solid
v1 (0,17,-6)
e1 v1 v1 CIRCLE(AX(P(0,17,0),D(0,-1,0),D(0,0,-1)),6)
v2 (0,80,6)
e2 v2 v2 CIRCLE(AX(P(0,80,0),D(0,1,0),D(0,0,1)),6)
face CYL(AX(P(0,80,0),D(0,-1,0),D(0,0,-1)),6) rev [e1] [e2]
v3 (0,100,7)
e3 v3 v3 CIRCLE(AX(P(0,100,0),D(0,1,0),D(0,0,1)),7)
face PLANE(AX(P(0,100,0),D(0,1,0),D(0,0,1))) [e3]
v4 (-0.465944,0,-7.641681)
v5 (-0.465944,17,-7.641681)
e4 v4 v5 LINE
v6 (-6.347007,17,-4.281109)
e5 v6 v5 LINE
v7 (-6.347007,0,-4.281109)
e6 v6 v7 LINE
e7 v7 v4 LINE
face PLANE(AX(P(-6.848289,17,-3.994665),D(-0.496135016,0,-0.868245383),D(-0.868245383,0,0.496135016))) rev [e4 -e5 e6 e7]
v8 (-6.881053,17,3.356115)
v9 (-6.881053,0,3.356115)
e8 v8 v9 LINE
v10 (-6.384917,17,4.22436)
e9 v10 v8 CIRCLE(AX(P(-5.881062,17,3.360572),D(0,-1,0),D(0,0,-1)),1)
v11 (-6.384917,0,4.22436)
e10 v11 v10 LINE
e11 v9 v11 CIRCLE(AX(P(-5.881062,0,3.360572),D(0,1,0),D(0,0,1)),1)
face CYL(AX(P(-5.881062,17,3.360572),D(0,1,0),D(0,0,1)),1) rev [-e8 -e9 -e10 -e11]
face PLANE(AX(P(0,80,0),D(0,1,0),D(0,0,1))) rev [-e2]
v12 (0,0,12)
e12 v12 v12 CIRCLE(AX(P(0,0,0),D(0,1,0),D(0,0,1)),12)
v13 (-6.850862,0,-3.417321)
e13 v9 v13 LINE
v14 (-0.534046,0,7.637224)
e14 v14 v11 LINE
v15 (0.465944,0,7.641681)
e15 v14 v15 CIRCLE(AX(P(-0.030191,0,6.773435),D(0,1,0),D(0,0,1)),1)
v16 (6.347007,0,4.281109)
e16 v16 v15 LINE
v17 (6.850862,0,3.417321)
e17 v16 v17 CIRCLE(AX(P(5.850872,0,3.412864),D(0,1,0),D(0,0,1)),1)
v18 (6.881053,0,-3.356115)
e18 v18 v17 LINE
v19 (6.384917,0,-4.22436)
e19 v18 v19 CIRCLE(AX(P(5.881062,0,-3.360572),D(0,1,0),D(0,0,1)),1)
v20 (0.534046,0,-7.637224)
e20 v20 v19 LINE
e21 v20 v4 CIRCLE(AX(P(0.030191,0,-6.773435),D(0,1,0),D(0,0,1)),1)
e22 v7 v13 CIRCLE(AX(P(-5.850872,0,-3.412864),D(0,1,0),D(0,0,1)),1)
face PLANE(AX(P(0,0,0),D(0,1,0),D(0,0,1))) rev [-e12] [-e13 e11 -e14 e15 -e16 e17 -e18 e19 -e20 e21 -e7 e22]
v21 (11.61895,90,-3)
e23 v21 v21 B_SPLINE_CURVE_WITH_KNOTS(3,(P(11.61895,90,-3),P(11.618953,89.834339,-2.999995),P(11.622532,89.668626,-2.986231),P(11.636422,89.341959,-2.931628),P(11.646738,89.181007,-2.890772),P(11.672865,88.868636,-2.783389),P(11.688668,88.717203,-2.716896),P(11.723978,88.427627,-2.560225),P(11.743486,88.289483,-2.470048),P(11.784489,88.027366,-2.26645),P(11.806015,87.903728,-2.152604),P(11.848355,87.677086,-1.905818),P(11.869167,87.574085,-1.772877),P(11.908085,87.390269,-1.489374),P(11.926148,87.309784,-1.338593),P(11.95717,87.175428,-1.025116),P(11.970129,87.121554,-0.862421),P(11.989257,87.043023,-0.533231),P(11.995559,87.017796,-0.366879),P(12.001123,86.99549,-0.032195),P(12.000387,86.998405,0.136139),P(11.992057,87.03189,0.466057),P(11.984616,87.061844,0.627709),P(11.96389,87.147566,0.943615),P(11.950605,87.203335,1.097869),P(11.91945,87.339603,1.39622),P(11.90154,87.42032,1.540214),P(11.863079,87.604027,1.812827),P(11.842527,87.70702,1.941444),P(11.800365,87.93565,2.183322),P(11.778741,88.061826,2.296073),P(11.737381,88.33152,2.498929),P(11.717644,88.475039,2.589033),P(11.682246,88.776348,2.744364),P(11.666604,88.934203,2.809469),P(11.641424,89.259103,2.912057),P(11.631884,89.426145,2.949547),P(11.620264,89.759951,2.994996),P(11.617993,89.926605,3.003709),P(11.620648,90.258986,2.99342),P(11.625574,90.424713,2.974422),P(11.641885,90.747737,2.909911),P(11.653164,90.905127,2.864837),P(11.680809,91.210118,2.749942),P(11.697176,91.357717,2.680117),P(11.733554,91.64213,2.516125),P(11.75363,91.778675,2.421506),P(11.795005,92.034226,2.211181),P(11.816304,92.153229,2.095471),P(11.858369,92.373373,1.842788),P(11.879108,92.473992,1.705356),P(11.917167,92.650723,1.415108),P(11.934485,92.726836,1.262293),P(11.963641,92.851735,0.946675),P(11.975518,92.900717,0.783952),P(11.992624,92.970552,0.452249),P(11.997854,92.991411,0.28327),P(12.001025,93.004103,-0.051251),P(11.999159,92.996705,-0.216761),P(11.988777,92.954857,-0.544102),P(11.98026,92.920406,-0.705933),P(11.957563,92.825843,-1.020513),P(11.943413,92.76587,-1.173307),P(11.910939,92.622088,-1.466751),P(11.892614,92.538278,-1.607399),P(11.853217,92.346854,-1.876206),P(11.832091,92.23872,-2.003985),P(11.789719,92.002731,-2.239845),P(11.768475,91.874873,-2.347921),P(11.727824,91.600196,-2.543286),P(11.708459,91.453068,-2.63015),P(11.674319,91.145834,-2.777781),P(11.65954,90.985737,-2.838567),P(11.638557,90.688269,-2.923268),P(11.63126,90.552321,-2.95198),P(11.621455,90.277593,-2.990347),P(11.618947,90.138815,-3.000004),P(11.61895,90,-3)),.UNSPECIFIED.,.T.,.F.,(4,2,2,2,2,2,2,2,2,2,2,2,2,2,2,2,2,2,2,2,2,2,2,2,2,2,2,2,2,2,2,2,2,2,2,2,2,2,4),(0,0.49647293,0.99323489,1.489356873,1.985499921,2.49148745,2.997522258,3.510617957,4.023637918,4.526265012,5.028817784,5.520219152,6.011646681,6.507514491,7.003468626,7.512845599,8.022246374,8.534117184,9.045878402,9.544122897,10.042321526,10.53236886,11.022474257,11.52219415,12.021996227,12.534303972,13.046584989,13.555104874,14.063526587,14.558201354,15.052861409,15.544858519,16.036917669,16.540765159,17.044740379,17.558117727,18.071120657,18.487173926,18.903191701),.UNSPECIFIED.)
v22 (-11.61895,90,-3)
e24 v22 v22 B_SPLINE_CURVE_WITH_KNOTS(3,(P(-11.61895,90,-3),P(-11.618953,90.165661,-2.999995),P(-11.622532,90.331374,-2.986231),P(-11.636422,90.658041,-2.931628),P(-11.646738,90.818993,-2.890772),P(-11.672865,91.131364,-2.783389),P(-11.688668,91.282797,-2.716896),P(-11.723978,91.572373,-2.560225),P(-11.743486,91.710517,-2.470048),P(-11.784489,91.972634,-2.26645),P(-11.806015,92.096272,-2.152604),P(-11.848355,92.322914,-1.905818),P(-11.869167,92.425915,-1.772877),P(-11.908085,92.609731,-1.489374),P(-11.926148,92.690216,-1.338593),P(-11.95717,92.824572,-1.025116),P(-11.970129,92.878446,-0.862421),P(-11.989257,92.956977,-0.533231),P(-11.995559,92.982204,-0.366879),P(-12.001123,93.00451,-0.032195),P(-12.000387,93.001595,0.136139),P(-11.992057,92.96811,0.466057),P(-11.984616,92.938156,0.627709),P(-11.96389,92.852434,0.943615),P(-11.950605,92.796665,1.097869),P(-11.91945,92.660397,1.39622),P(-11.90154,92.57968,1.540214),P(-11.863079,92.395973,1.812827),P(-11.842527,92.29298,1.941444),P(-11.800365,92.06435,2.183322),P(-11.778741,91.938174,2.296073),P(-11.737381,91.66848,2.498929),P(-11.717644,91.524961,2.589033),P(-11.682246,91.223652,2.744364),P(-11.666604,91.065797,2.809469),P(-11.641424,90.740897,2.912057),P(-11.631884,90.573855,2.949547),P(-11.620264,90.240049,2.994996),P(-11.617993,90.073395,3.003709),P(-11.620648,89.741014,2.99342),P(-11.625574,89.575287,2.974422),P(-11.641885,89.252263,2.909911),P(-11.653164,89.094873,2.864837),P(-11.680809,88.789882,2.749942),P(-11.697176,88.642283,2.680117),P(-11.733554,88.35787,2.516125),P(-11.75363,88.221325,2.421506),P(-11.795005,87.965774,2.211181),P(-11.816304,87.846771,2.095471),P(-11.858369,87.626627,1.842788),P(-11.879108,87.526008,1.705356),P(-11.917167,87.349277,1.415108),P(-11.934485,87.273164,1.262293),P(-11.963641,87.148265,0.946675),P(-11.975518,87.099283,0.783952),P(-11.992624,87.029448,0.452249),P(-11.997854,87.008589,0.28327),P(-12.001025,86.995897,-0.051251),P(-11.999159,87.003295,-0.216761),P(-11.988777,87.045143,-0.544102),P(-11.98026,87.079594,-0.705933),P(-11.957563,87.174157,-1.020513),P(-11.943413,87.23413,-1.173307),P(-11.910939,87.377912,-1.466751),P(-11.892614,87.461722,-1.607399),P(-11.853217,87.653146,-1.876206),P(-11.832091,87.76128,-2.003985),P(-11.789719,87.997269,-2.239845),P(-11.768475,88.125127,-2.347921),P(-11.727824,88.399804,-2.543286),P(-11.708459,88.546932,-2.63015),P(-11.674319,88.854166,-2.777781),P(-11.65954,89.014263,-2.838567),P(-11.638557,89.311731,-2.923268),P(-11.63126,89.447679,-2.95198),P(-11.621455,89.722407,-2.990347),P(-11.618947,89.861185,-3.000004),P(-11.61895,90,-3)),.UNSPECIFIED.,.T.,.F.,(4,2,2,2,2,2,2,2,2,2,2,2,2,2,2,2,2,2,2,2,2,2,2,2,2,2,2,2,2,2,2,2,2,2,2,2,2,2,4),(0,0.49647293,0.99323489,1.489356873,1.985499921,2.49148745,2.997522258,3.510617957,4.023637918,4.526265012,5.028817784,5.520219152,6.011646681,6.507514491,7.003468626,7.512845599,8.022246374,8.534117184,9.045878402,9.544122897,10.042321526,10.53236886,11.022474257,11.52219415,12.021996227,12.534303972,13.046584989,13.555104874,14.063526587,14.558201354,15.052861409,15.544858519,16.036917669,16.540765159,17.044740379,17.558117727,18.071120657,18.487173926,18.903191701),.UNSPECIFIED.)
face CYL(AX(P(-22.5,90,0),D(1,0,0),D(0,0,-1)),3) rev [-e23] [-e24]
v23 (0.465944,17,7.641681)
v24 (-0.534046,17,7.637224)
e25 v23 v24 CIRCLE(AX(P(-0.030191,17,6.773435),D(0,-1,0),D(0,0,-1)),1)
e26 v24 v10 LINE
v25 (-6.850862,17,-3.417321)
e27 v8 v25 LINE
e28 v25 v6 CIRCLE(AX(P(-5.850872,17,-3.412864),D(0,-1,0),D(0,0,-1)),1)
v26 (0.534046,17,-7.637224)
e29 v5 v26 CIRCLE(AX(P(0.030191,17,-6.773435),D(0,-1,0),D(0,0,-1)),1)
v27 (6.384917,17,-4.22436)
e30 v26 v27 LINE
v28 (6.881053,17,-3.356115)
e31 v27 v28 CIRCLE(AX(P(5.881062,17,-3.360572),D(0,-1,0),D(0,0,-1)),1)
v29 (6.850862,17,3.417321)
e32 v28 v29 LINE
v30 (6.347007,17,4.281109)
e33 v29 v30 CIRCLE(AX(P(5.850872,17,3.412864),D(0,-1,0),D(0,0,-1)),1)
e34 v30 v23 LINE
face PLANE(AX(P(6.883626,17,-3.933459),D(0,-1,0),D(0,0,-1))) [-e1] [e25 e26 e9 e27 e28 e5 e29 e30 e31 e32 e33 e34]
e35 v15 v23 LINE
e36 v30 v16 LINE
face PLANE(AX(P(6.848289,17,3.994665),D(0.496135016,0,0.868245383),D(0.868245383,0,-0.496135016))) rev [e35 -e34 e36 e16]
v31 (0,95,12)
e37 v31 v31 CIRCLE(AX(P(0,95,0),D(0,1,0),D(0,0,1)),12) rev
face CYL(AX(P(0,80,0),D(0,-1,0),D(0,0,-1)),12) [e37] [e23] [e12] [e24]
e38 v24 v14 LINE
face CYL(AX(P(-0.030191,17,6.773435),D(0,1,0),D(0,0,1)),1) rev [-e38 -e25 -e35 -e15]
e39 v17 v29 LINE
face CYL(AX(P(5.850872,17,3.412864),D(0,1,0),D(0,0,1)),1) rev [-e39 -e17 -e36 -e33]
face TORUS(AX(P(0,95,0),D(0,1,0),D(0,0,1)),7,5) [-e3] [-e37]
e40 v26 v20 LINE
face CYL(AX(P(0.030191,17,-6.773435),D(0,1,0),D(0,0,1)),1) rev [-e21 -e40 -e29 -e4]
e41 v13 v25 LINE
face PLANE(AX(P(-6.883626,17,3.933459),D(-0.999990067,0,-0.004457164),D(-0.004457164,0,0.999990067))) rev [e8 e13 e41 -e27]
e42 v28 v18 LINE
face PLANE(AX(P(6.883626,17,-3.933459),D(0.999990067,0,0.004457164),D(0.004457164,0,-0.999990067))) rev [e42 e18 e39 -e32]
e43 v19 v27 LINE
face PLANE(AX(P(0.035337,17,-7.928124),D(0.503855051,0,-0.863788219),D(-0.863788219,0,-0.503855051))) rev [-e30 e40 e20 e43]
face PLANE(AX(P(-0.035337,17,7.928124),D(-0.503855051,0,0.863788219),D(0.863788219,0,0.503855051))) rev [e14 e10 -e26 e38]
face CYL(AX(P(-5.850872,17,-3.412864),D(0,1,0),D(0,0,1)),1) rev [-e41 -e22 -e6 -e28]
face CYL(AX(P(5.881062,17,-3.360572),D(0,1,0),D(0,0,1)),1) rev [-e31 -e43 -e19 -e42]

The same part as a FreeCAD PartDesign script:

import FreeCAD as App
import Part
import Sketcher
from FreeCAD import Vector
Q = App.Units.Quantity


def edges_at(feature, points):
    """Names of the edges that pass closest to the given points."""
    edges = feature.Shape.Edges
    near = lambda p: min(range(len(edges)), key=lambda i: edges[i].distToShape(Part.Vertex(*p))[0])
    return sorted({f"Edge{near(p) + 1}" for p in points})


def add_polygon(sketch, points):
    """Adds a closed chain of lines whose ends are joined by coincident constraints."""
    first, n = sketch.GeometryCount, len(points)
    for a, b in zip(points, points[1:] + points[:1]):
        sketch.addGeometry(Part.LineSegment(App.Vector(*a, 0), App.Vector(*b, 0)), False)
    for i in range(n):
        sketch.addConstraint(Sketcher.Constraint("Coincident", first + i, 2, first + (i + 1) % n, 1))

doc = App.newDocument("Part")
body = doc.addObject("PartDesign::Body", "Body")

# Sketch on XZ plane
sketch1 = body.newObject("Sketcher::SketchObject", "Sketch")
sketch1.AttachmentSupport = (doc.getObject("XZ_Plane"), [""])
sketch1.MapMode = "FlatFace"
sketch1.addGeometry(Part.Circle(Vector(0, 0, 0), Vector(0, 0, 1), 12), False)
sketch1.addGeometry(Part.Circle(Vector(0, 0, 0), Vector(0, 0, 1), 6), False)
sketch1.addConstraint(Sketcher.Constraint("Coincident", 0, 3, -1, 1))
sketch1.addConstraint(Sketcher.Constraint("Coincident", 1, 3, -1, 1))
sketch1.addConstraint(Sketcher.Constraint("Diameter", 0, Q("24 mm")))
sketch1.addConstraint(Sketcher.Constraint("Diameter", 1, Q("12 mm")))
pad1 = body.newObject("PartDesign::Pad", "Pad")
pad1.Profile = sketch1
pad1.Length = 80
pad1.Reversed = True

# Sketch on XZ plane
sketch2 = body.newObject("Sketcher::SketchObject", "Sketch001")
sketch2.AttachmentSupport = (doc.getObject("XZ_Plane"), [""])
sketch2.MapMode = "FlatFace"
add_polygon(sketch2, [(7, -4), (7, 4), (0, 8), (-7, 4), (-7, -4), (0, -8)])  # lines 0-5
sketch2.addConstraint(Sketcher.Constraint("Symmetric", 0, 2, 3, 2, -1, 1))
sketch2.addConstraint(Sketcher.Constraint("Symmetric", 1, 2, 4, 2, -1, 1))
sketch2.addConstraint(Sketcher.Constraint("Symmetric", 2, 2, 5, 2, -1, 1))
sketch2.addConstraint(Sketcher.Constraint("Equal", 0, 1))
sketch2.addConstraint(Sketcher.Constraint("Equal", 1, 2))
sketch2.addConstraint(Sketcher.Constraint("DistanceX", -1, 1, 0, 2, Q("6.848289 mm")))
sketch2.addConstraint(Sketcher.Constraint("DistanceY", -1, 1, 2, 2, Q("3.933459 mm")))
sketch2.addConstraint(Sketcher.Constraint("DistanceY", 0, 2, 1, 2, Q("3.933459 mm")))
sketch2.addConstraint(Sketcher.Constraint("DistanceX", 2, 2, 1, 2, Q("6.848289 mm")))
pocket1 = body.newObject("PartDesign::Pocket", "Pocket")
pocket1.Profile = sketch2
pocket1.Length = 17
doc.recompute()

fillet = body.newObject("PartDesign::Fillet", "Fillet")
fillet.Base = (pocket1, edges_at(pocket1, [
    (6.884, 8.5, -3.933),
    (0.035, 8.5, -7.928),
    (-6.848, 8.5, -3.995),
    (-6.884, 8.5, 3.933),
    (-0.035, 8.5, 7.928),
    (6.848, 8.5, 3.995),
]))
fillet.Radius = 1

# Sketch on XZ plane
sketch3 = body.newObject("Sketcher::SketchObject", "Sketch002")
sketch3.AttachmentSupport = (doc.getObject("XZ_Plane"), [""])
sketch3.MapMode = "FlatFace"
sketch3.AttachmentOffset = App.Placement(Vector(0, 0, -80), App.Rotation())
sketch3.addGeometry(Part.Circle(Vector(0, 0, 0), Vector(0, 0, 1), 12), False)
sketch3.addConstraint(Sketcher.Constraint("Coincident", 0, 3, -1, 1))
sketch3.addConstraint(Sketcher.Constraint("Diameter", 0, Q("24 mm")))
pad2 = body.newObject("PartDesign::Pad", "Pad001")
pad2.Profile = sketch3
pad2.Length = 20
pad2.Reversed = True
doc.recompute()

fillet2 = body.newObject("PartDesign::Fillet", "Fillet001")
fillet2.Base = (pad2, edges_at(pad2, [(0, 100, -12)]))
fillet2.Radius = 5

# Sketch on YZ plane
sketch4 = body.newObject("Sketcher::SketchObject", "Sketch003")
sketch4.AttachmentSupport = (doc.getObject("YZ_Plane"), [""])
sketch4.MapMode = "FlatFace"
sketch4.addGeometry(Part.Circle(Vector(90, 0, 0), Vector(0, 0, 1), 3), False)
sketch4.addConstraint(Sketcher.Constraint("PointOnObject", 0, 3, -1))
sketch4.addConstraint(Sketcher.Constraint("Diameter", 0, Q("6 mm")))
sketch4.addConstraint(Sketcher.Constraint("DistanceX", -1, 1, 0, 3, Q("90 mm")))
pocket2 = body.newObject("PartDesign::Pocket", "Pocket001")
pocket2.Profile = sketch4
pocket2.Length = 45
pocket2.Midplane = True

doc.recompute()
